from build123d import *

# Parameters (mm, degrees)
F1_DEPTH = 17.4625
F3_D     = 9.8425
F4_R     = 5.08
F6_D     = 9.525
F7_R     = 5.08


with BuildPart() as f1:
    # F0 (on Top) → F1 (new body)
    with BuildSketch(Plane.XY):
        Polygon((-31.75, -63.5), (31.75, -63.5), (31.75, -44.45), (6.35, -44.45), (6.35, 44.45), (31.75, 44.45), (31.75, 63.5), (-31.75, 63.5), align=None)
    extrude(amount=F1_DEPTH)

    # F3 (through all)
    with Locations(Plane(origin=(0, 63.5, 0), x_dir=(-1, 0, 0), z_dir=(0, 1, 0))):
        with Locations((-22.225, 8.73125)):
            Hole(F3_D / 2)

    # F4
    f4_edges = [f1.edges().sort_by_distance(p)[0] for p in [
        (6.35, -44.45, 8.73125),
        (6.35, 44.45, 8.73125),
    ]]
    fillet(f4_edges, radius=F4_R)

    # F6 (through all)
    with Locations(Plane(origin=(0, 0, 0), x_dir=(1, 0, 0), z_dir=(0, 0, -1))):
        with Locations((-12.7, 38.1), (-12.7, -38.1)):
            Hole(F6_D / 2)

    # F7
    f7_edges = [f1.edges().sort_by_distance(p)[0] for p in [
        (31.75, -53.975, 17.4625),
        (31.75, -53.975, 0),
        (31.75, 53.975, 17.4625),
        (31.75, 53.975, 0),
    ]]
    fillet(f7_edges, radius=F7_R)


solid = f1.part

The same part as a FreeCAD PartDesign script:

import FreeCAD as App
import Part
import Sketcher
from FreeCAD import Vector
Q = App.Units.Quantity


def edges_at(feature, points):
    """Names of the edges that pass closest to the given points."""
    edges = feature.Shape.Edges
    near = lambda p: min(range(len(edges)), key=lambda i: edges[i].distToShape(Part.Vertex(*p))[0])
    return sorted({f"Edge{near(p) + 1}" for p in points})

doc = App.newDocument("Part")
body = doc.addObject("PartDesign::Body", "Body")

sketch1 = body.newObject("Sketcher::SketchObject", "Sketch")
sketch1.AttachmentSupport = (doc.getObject("XY_Plane"), [""])
sketch1.MapMode = "FlatFace"
sketch1.addGeometry(Part.LineSegment(Vector(-31.75, -63.5, 0), Vector(31.75, -63.5, 0)), False)
sketch1.addGeometry(Part.LineSegment(Vector(31.75, -63.5, 0), Vector(31.75, -44.45, 0)), False)
sketch1.addGeometry(Part.LineSegment(Vector(31.75, -44.45, 0), Vector(6.35, -44.45, 0)), False)
sketch1.addGeometry(Part.LineSegment(Vector(6.35, -44.45, 0), Vector(6.35, 44.45, 0)), False)
sketch1.addGeometry(Part.LineSegment(Vector(6.35, 44.45, 0), Vector(31.75, 44.45, 0)), False)
sketch1.addGeometry(Part.LineSegment(Vector(31.75, 44.45, 0), Vector(31.75, 63.5, 0)), False)
sketch1.addGeometry(Part.LineSegment(Vector(31.75, 63.5, 0), Vector(-31.75, 63.5, 0)), False)
sketch1.addGeometry(Part.LineSegment(Vector(-31.75, 63.5, 0), Vector(-31.75, -63.5, 0)), False)
sketch1.addConstraint(Sketcher.Constraint("Coincident", 0, 2, 1, 1))
sketch1.addConstraint(Sketcher.Constraint("Coincident", 1, 2, 2, 1))
sketch1.addConstraint(Sketcher.Constraint("Coincident", 2, 2, 3, 1))
sketch1.addConstraint(Sketcher.Constraint("Coincident", 3, 2, 4, 1))
sketch1.addConstraint(Sketcher.Constraint("Coincident", 4, 2, 5, 1))
sketch1.addConstraint(Sketcher.Constraint("Coincident", 5, 2, 6, 1))
sketch1.addConstraint(Sketcher.Constraint("Coincident", 6, 2, 7, 1))
sketch1.addConstraint(Sketcher.Constraint("Coincident", 7, 2, 0, 1))
sketch1.addConstraint(Sketcher.Constraint("Horizontal", 0))
sketch1.addConstraint(Sketcher.Constraint("Vertical", 1))
sketch1.addConstraint(Sketcher.Constraint("Horizontal", 2))
sketch1.addConstraint(Sketcher.Constraint("Vertical", 3))
sketch1.addConstraint(Sketcher.Constraint("Horizontal", 4))
sketch1.addConstraint(Sketcher.Constraint("Vertical", 5))
sketch1.addConstraint(Sketcher.Constraint("Horizontal", 6))
sketch1.addConstraint(Sketcher.Constraint("Vertical", 7))
sketch1.addConstraint(Sketcher.Constraint("Symmetric", 0, 2, 6, 2, -1, 1))
sketch1.addConstraint(Sketcher.Constraint("Symmetric", 1, 2, 4, 2, -1))
sketch1.addConstraint(Sketcher.Constraint("DistanceX", 2, 2, 2, 1, Q("1 in")))
sketch1.addConstraint(Sketcher.Constraint("DistanceY", 7, 2, 7, 1, Q("5 in")))
sketch1.addConstraint(Sketcher.Constraint("DistanceX", 0, 1, 0, 2, Q("2.5 in")))
sketch1.addConstraint(Sketcher.Constraint("DistanceY", 3, 1, 3, 2, Q("3.5 in")))
pad1 = body.newObject("PartDesign::Pad", "Pad")
pad1.Profile = sketch1
pad1.Length = Q("0.6875 in")

sketch2 = body.newObject("Sketcher::SketchObject", "Sketch001")
sketch2.AttachmentSupport = (doc.getObject("XZ_Plane"), [""])
sketch2.MapMode = "FlatFace"
sketch2.AttachmentOffset = App.Placement(Vector(0, 0, -2.5 * 25.4), App.Rotation())
sketch2.addGeometry(Part.Circle(Vector(22.225, 8.73125, 0), Vector(0, 0, 1), 4.92125), False)
sketch2.addConstraint(Sketcher.Constraint("Diameter", 0, Q("0.3875 in")))
sketch2.addConstraint(Sketcher.Constraint("DistanceX", -1, 1, 0, 3, Q("0.875 in")))
sketch2.addConstraint(Sketcher.Constraint("DistanceY", -1, 1, 0, 3, Q("0.34375 in")))
doc.recompute()
hole = body.newObject("PartDesign::Hole", "Hole")
hole.Profile = sketch2
hole.ThreadType = "None"
hole.Diameter = Q("0.3875 in")
hole.DepthType = "ThroughAll"
hole.Reversed = True
doc.recompute()

fillet = body.newObject("PartDesign::Fillet", "Fillet")
fillet.Base = (hole, edges_at(hole, [(6.35, -44.45, 8.731), (6.35, 44.45, 8.731)]))
fillet.Radius = Q("0.2 in")

sketch3 = body.newObject("Sketcher::SketchObject", "Sketch002")
sketch3.AttachmentSupport = (doc.getObject("XY_Plane"), [""])
sketch3.MapMode = "FlatFace"
sketch3.addGeometry(Part.Circle(Vector(-12.7, -38.1, 0), Vector(0, 0, 1), 4.7625), False)
sketch3.addGeometry(Part.Circle(Vector(-12.7, 38.1, 0), Vector(0, 0, 1), 4.7625), False)
sketch3.addConstraint(Sketcher.Constraint("Equal", 0, 1))
sketch3.addConstraint(Sketcher.Constraint("Symmetric", 0, 3, 1, 3, -1))
sketch3.addConstraint(Sketcher.Constraint("Diameter", 0, Q("0.375 in")))
sketch3.addConstraint(Sketcher.Constraint("DistanceY", 0, 3, 1, 3, Q("3 in")))
sketch3.addConstraint(Sketcher.Constraint("DistanceX", 0, 3, -1, 1, Q("0.5 in")))
doc.recompute()
hole2 = body.newObject("PartDesign::Hole", "Hole001")
hole2.Profile = sketch3
hole2.ThreadType = "None"
hole2.Diameter = Q("0.375 in")
hole2.DepthType = "ThroughAll"
hole2.Reversed = True
doc.recompute()

fillet2 = body.newObject("PartDesign::Fillet", "Fillet001")
fillet2.Base = (hole2, edges_at(hole2, [
    (31.75, -53.975, 17.462),
    (31.75, -53.975, 0),
    (31.75, 53.975, 17.462),
    (31.75, 53.975, 0),
]))
fillet2.Radius = Q("0.2 in")

doc.recompute()
